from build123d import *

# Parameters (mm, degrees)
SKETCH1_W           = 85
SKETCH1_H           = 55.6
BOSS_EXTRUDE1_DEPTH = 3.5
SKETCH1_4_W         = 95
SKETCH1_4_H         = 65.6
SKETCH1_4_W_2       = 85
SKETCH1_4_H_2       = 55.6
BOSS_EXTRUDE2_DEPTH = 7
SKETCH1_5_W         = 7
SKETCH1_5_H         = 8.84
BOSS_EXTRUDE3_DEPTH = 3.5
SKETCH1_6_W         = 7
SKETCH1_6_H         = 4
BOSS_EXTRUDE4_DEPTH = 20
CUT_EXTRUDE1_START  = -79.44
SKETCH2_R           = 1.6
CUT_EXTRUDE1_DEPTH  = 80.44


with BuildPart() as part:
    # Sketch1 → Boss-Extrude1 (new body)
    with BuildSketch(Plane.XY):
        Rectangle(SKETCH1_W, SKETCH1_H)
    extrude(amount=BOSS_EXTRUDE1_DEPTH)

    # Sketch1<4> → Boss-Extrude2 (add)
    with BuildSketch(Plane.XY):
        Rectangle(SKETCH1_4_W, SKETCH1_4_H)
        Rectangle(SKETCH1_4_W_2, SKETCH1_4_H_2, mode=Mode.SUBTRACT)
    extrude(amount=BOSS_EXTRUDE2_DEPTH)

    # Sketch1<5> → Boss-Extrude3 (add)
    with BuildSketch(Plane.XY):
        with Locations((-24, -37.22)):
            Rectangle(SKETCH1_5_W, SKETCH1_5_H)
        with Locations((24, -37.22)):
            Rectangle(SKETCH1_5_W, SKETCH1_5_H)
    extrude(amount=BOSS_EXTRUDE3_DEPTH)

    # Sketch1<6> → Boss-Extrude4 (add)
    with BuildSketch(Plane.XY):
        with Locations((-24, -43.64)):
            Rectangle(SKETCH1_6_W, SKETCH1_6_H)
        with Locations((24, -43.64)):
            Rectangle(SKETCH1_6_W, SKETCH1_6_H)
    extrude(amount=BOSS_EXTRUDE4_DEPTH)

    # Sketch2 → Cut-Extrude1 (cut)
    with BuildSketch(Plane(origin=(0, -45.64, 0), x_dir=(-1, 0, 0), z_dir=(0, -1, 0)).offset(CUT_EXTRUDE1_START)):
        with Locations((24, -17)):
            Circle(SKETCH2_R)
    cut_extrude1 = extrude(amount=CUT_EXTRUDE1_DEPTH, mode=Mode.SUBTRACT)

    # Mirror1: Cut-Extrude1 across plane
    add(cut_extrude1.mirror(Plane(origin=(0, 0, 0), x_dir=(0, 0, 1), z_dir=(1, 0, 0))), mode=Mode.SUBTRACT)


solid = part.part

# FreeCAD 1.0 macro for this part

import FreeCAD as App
import Part
import Sketcher

V = App.Vector
Q = App.Units.Quantity

doc = App.newDocument("Part")
params = doc.addObject("Spreadsheet::Sheet", "Params")
for row, (alias, value) in enumerate([
    ("sketch1_width", "85 mm"),
    ("sketch1_height", "55.6 mm"),
    ("pad1_length", "3.5 mm"),
    ("sketch2_width", "95 mm"),
    ("sketch2_width2", "85 mm"),
    ("sketch2_height", "65.6 mm"),
    ("sketch2_height2", "55.6 mm"),
    ("pad2_length", "7 mm"),
    ("sketch3_width", "7 mm"),
    ("sketch3_height", "8.84 mm"),
    ("pad3_length", "3.5 mm"),
    ("sketch4_width", "7 mm"),
    ("sketch4_height", "4 mm"),
    ("pad4_length", "20 mm"),
    ("sketch5_diameter", "3.2 mm"),
    ("pocket1_length", "80.44 mm"),
], start=1):
    params.set(f"A{row}", alias)
    params.set(f"B{row}", "=" + value)
    params.setAlias(f"B{row}", alias)

body = doc.addObject("PartDesign::Body", "Body")

sketch1 = body.newObject("Sketcher::SketchObject", "Sketch")
sketch1.AttachmentSupport = (doc.getObject("XY_Plane"), [""])
sketch1.MapMode = "FlatFace"
sketch1.addGeometry(Part.LineSegment(V(-42.5, 27.8, 0), V(-42.5, -27.8, 0)), False)
sketch1.addGeometry(Part.LineSegment(V(-42.5, -27.8, 0), V(42.5, -27.8, 0)), False)
sketch1.addGeometry(Part.LineSegment(V(42.5, -27.8, 0), V(42.5, 27.8, 0)), False)
sketch1.addGeometry(Part.LineSegment(V(42.5, 27.8, 0), V(-42.5, 27.8, 0)), False)
sketch1.addConstraint(Sketcher.Constraint("Coincident", 0, 2, 1, 1))
sketch1.addConstraint(Sketcher.Constraint("Coincident", 1, 2, 2, 1))
sketch1.addConstraint(Sketcher.Constraint("Coincident", 2, 2, 3, 1))
sketch1.addConstraint(Sketcher.Constraint("Coincident", 3, 2, 0, 1))
sketch1.addConstraint(Sketcher.Constraint("Vertical", 0))
sketch1.addConstraint(Sketcher.Constraint("Horizontal", 1))
sketch1.addConstraint(Sketcher.Constraint("Vertical", 2))
sketch1.addConstraint(Sketcher.Constraint("Horizontal", 3))
sketch1.addConstraint(Sketcher.Constraint("Symmetric", 0, 2, 2, 2, -1, 1))
sketch1.addConstraint(Sketcher.Constraint("DistanceX", 1, 1, 1, 2, Q("85 mm")))
sketch1.addConstraint(Sketcher.Constraint("DistanceY", 0, 2, 0, 1, Q("55.6 mm")))
sketch1.setExpression("Constraints[9]", "Params.sketch1_width")
sketch1.setExpression("Constraints[10]", "Params.sketch1_height")
pad1 = body.newObject("PartDesign::Pad", "Pad")
pad1.Profile = sketch1
pad1.setExpression("Length", "Params.pad1_length")

sketch2 = body.newObject("Sketcher::SketchObject", "Sketch001")
sketch2.AttachmentSupport = (doc.getObject("XY_Plane"), [""])
sketch2.MapMode = "FlatFace"
sketch2.addGeometry(Part.LineSegment(V(-47.5, 32.8, 0), V(-47.5, -32.8, 0)), False)
sketch2.addGeometry(Part.LineSegment(V(-47.5, -32.8, 0), V(47.5, -32.8, 0)), False)
sketch2.addGeometry(Part.LineSegment(V(47.5, -32.8, 0), V(47.5, 32.8, 0)), False)
sketch2.addGeometry(Part.LineSegment(V(47.5, 32.8, 0), V(-47.5, 32.8, 0)), False)
sketch2.addGeometry(Part.LineSegment(V(42.5, -27.8, 0), V(-42.5, -27.8, 0)), False)
sketch2.addGeometry(Part.LineSegment(V(-42.5, -27.8, 0), V(-42.5, 27.8, 0)), False)
sketch2.addGeometry(Part.LineSegment(V(-42.5, 27.8, 0), V(42.5, 27.8, 0)), False)
sketch2.addGeometry(Part.LineSegment(V(42.5, 27.8, 0), V(42.5, -27.8, 0)), False)
sketch2.addConstraint(Sketcher.Constraint("Coincident", 0, 2, 1, 1))
sketch2.addConstraint(Sketcher.Constraint("Coincident", 1, 2, 2, 1))
sketch2.addConstraint(Sketcher.Constraint("Coincident", 2, 2, 3, 1))
sketch2.addConstraint(Sketcher.Constraint("Coincident", 3, 2, 0, 1))
sketch2.addConstraint(Sketcher.Constraint("Coincident", 4, 2, 5, 1))
sketch2.addConstraint(Sketcher.Constraint("Coincident", 5, 2, 6, 1))
sketch2.addConstraint(Sketcher.Constraint("Coincident", 6, 2, 7, 1))
sketch2.addConstraint(Sketcher.Constraint("Coincident", 7, 2, 4, 1))
sketch2.addConstraint(Sketcher.Constraint("Vertical", 0))
sketch2.addConstraint(Sketcher.Constraint("Horizontal", 1))
sketch2.addConstraint(Sketcher.Constraint("Vertical", 2))
sketch2.addConstraint(Sketcher.Constraint("Horizontal", 3))
sketch2.addConstraint(Sketcher.Constraint("Horizontal", 4))
sketch2.addConstraint(Sketcher.Constraint("Vertical", 5))
sketch2.addConstraint(Sketcher.Constraint("Horizontal", 6))
sketch2.addConstraint(Sketcher.Constraint("Vertical", 7))
sketch2.addConstraint(Sketcher.Constraint("Symmetric", 0, 2, 2, 2, -1, 1))
sketch2.addConstraint(Sketcher.Constraint("Symmetric", 4, 2, 6, 2, -1, 1))
sketch2.addConstraint(Sketcher.Constraint("DistanceX", 1, 1, 1, 2, Q("95 mm")))
sketch2.addConstraint(Sketcher.Constraint("DistanceX", 4, 2, 4, 1, Q("85 mm")))
sketch2.addConstraint(Sketcher.Constraint("DistanceY", 0, 2, 0, 1, Q("65.6 mm")))
sketch2.addConstraint(Sketcher.Constraint("DistanceY", 5, 1, 5, 2, Q("55.6 mm")))
sketch2.setExpression("Constraints[18]", "Params.sketch2_width")
sketch2.setExpression("Constraints[19]", "Params.sketch2_width2")
sketch2.setExpression("Constraints[20]", "Params.sketch2_height")
sketch2.setExpression("Constraints[21]", "Params.sketch2_height2")
pad2 = body.newObject("PartDesign::Pad", "Pad001")
pad2.Profile = sketch2
pad2.setExpression("Length", "Params.pad2_length")

sketch3 = body.newObject("Sketcher::SketchObject", "Sketch002")
sketch3.AttachmentSupport = (doc.getObject("XY_Plane"), [""])
sketch3.MapMode = "FlatFace"
sketch3.addGeometry(Part.LineSegment(V(-27.5, -32.8, 0), V(-27.5, -41.64, 0)), False)
sketch3.addGeometry(Part.LineSegment(V(-27.5, -41.64, 0), V(-20.5, -41.64, 0)), False)
sketch3.addGeometry(Part.LineSegment(V(-20.5, -41.64, 0), V(-20.5, -32.8, 0)), False)
sketch3.addGeometry(Part.LineSegment(V(-20.5, -32.8, 0), V(-27.5, -32.8, 0)), False)
sketch3.addGeometry(Part.LineSegment(V(20.5, -32.8, 0), V(20.5, -41.64, 0)), False)
sketch3.addGeometry(Part.LineSegment(V(20.5, -41.64, 0), V(27.5, -41.64, 0)), False)
sketch3.addGeometry(Part.LineSegment(V(27.5, -41.64, 0), V(27.5, -32.8, 0)), False)
sketch3.addGeometry(Part.LineSegment(V(27.5, -32.8, 0), V(20.5, -32.8, 0)), False)
sketch3.addConstraint(Sketcher.Constraint("Coincident", 0, 2, 1, 1))
sketch3.addConstraint(Sketcher.Constraint("Coincident", 1, 2, 2, 1))
sketch3.addConstraint(Sketcher.Constraint("Coincident", 2, 2, 3, 1))
sketch3.addConstraint(Sketcher.Constraint("Coincident", 3, 2, 0, 1))
sketch3.addConstraint(Sketcher.Constraint("Coincident", 4, 2, 5, 1))
sketch3.addConstraint(Sketcher.Constraint("Coincident", 5, 2, 6, 1))
sketch3.addConstraint(Sketcher.Constraint("Coincident", 6, 2, 7, 1))
sketch3.addConstraint(Sketcher.Constraint("Coincident", 7, 2, 4, 1))
sketch3.addConstraint(Sketcher.Constraint("Vertical", 0))
sketch3.addConstraint(Sketcher.Constraint("Horizontal", 1))
sketch3.addConstraint(Sketcher.Constraint("Vertical", 2))
sketch3.addConstraint(Sketcher.Constraint("Horizontal", 3))
sketch3.addConstraint(Sketcher.Constraint("Vertical", 4))
sketch3.addConstraint(Sketcher.Constraint("Horizontal", 5))
sketch3.addConstraint(Sketcher.Constraint("Vertical", 6))
sketch3.addConstraint(Sketcher.Constraint("Horizontal", 7))
sketch3.addConstraint(Sketcher.Constraint("Symmetric", 1, 2, 4, 2, -2))
sketch3.addConstraint(Sketcher.Constraint("Symmetric", 3, 2, 6, 2, -2))
sketch3.addConstraint(Sketcher.Constraint("DistanceX", 1, 1, 1, 2, Q("7 mm")))
sketch3.addConstraint(Sketcher.Constraint("DistanceX", 1, 2, 4, 2, Q("41 mm")))
sketch3.addConstraint(Sketcher.Constraint("DistanceY", 0, 2, 0, 1, Q("8.84 mm")))
sketch3.addConstraint(Sketcher.Constraint("DistanceY", 2, 2, -1, 1, Q("32.8 mm")))
sketch3.setExpression("Constraints[18]", "Params.sketch3_width")
sketch3.setExpression("Constraints[20]", "Params.sketch3_height")
pad3 = body.newObject("PartDesign::Pad", "Pad002")
pad3.Profile = sketch3
pad3.setExpression("Length", "Params.pad3_length")

sketch4 = body.newObject("Sketcher::SketchObject", "Sketch003")
sketch4.AttachmentSupport = (doc.getObject("XY_Plane"), [""])
sketch4.MapMode = "FlatFace"
sketch4.addGeometry(Part.LineSegment(V(-27.5, -41.64, 0), V(-27.5, -45.64, 0)), False)
sketch4.addGeometry(Part.LineSegment(V(-27.5, -45.64, 0), V(-20.5, -45.64, 0)), False)
sketch4.addGeometry(Part.LineSegment(V(-20.5, -45.64, 0), V(-20.5, -41.64, 0)), False)
sketch4.addGeometry(Part.LineSegment(V(-20.5, -41.64, 0), V(-27.5, -41.64, 0)), False)
sketch4.addGeometry(Part.LineSegment(V(20.5, -41.64, 0), V(20.5, -45.64, 0)), False)
sketch4.addGeometry(Part.LineSegment(V(20.5, -45.64, 0), V(27.5, -45.64, 0)), False)
sketch4.addGeometry(Part.LineSegment(V(27.5, -45.64, 0), V(27.5, -41.64, 0)), False)
sketch4.addGeometry(Part.LineSegment(V(27.5, -41.64, 0), V(20.5, -41.64, 0)), False)
sketch4.addConstraint(Sketcher.Constraint("Coincident", 0, 2, 1, 1))
sketch4.addConstraint(Sketcher.Constraint("Coincident", 1, 2, 2, 1))
sketch4.addConstraint(Sketcher.Constraint("Coincident", 2, 2, 3, 1))
sketch4.addConstraint(Sketcher.Constraint("Coincident", 3, 2, 0, 1))
sketch4.addConstraint(Sketcher.Constraint("Coincident", 4, 2, 5, 1))
sketch4.addConstraint(Sketcher.Constraint("Coincident", 5, 2, 6, 1))
sketch4.addConstraint(Sketcher.Constraint("Coincident", 6, 2, 7, 1))
sketch4.addConstraint(Sketcher.Constraint("Coincident", 7, 2, 4, 1))
sketch4.addConstraint(Sketcher.Constraint("Vertical", 0))
sketch4.addConstraint(Sketcher.Constraint("Horizontal", 1))
sketch4.addConstraint(Sketcher.Constraint("Vertical", 2))
sketch4.addConstraint(Sketcher.Constraint("Horizontal", 3))
sketch4.addConstraint(Sketcher.Constraint("Vertical", 4))
sketch4.addConstraint(Sketcher.Constraint("Horizontal", 5))
sketch4.addConstraint(Sketcher.Constraint("Vertical", 6))
sketch4.addConstraint(Sketcher.Constraint("Horizontal", 7))
sketch4.addConstraint(Sketcher.Constraint("Symmetric", 1, 2, 4, 2, -2))
sketch4.addConstraint(Sketcher.Constraint("Symmetric", 3, 2, 6, 2, -2))
sketch4.addConstraint(Sketcher.Constraint("DistanceX", 1, 1, 1, 2, Q("7 mm")))
sketch4.addConstraint(Sketcher.Constraint("DistanceY", 0, 2, 0, 1, Q("4 mm")))
sketch4.addConstraint(Sketcher.Constraint("DistanceX", 1, 2, 4, 2, Q("41 mm")))
sketch4.addConstraint(Sketcher.Constraint("DistanceY", 0, 2, -1, 1, Q("45.64 mm")))
sketch4.setExpression("Constraints[18]", "Params.sketch4_width")
sketch4.setExpression("Constraints[19]", "Params.sketch4_height")
pad4 = body.newObject("PartDesign::Pad", "Pad003")
pad4.Profile = sketch4
pad4.setExpression("Length", "Params.pad4_length")

sketch5 = body.newObject("Sketcher::SketchObject", "Sketch004")
sketch5.AttachmentSupport = (doc.getObject("XZ_Plane"), [""])
sketch5.MapMode = "FlatFace"
sketch5.AttachmentOffset = App.Placement(V(0, 0, -33.8), App.Rotation())
sketch5.addGeometry(Part.Circle(V(-24, 17, 0), V(0, 0, 1), 1.6), False)
sketch5.addConstraint(Sketcher.Constraint("Diameter", 0, Q("3.2 mm")))
sketch5.addConstraint(Sketcher.Constraint("DistanceX", 0, 3, -1, 1, Q("24 mm")))
sketch5.addConstraint(Sketcher.Constraint("DistanceY", -1, 1, 0, 3, Q("17 mm")))
sketch5.setExpression("Constraints[0]", "Params.sketch5_diameter")
pocket1 = body.newObject("PartDesign::Pocket", "Pocket")
pocket1.Profile = sketch5
pocket1.setExpression("Length", "Params.pocket1_length")
pocket1.Reversed = True
doc.recompute()

mirrored = body.newObject("PartDesign::Mirrored", "Mirrored")
mirrored.Originals = [pocket1]
mirrored.MirrorPlane = (doc.getObject("YZ_Plane"), [""])
body.Tip = mirrored

doc.recompute()
